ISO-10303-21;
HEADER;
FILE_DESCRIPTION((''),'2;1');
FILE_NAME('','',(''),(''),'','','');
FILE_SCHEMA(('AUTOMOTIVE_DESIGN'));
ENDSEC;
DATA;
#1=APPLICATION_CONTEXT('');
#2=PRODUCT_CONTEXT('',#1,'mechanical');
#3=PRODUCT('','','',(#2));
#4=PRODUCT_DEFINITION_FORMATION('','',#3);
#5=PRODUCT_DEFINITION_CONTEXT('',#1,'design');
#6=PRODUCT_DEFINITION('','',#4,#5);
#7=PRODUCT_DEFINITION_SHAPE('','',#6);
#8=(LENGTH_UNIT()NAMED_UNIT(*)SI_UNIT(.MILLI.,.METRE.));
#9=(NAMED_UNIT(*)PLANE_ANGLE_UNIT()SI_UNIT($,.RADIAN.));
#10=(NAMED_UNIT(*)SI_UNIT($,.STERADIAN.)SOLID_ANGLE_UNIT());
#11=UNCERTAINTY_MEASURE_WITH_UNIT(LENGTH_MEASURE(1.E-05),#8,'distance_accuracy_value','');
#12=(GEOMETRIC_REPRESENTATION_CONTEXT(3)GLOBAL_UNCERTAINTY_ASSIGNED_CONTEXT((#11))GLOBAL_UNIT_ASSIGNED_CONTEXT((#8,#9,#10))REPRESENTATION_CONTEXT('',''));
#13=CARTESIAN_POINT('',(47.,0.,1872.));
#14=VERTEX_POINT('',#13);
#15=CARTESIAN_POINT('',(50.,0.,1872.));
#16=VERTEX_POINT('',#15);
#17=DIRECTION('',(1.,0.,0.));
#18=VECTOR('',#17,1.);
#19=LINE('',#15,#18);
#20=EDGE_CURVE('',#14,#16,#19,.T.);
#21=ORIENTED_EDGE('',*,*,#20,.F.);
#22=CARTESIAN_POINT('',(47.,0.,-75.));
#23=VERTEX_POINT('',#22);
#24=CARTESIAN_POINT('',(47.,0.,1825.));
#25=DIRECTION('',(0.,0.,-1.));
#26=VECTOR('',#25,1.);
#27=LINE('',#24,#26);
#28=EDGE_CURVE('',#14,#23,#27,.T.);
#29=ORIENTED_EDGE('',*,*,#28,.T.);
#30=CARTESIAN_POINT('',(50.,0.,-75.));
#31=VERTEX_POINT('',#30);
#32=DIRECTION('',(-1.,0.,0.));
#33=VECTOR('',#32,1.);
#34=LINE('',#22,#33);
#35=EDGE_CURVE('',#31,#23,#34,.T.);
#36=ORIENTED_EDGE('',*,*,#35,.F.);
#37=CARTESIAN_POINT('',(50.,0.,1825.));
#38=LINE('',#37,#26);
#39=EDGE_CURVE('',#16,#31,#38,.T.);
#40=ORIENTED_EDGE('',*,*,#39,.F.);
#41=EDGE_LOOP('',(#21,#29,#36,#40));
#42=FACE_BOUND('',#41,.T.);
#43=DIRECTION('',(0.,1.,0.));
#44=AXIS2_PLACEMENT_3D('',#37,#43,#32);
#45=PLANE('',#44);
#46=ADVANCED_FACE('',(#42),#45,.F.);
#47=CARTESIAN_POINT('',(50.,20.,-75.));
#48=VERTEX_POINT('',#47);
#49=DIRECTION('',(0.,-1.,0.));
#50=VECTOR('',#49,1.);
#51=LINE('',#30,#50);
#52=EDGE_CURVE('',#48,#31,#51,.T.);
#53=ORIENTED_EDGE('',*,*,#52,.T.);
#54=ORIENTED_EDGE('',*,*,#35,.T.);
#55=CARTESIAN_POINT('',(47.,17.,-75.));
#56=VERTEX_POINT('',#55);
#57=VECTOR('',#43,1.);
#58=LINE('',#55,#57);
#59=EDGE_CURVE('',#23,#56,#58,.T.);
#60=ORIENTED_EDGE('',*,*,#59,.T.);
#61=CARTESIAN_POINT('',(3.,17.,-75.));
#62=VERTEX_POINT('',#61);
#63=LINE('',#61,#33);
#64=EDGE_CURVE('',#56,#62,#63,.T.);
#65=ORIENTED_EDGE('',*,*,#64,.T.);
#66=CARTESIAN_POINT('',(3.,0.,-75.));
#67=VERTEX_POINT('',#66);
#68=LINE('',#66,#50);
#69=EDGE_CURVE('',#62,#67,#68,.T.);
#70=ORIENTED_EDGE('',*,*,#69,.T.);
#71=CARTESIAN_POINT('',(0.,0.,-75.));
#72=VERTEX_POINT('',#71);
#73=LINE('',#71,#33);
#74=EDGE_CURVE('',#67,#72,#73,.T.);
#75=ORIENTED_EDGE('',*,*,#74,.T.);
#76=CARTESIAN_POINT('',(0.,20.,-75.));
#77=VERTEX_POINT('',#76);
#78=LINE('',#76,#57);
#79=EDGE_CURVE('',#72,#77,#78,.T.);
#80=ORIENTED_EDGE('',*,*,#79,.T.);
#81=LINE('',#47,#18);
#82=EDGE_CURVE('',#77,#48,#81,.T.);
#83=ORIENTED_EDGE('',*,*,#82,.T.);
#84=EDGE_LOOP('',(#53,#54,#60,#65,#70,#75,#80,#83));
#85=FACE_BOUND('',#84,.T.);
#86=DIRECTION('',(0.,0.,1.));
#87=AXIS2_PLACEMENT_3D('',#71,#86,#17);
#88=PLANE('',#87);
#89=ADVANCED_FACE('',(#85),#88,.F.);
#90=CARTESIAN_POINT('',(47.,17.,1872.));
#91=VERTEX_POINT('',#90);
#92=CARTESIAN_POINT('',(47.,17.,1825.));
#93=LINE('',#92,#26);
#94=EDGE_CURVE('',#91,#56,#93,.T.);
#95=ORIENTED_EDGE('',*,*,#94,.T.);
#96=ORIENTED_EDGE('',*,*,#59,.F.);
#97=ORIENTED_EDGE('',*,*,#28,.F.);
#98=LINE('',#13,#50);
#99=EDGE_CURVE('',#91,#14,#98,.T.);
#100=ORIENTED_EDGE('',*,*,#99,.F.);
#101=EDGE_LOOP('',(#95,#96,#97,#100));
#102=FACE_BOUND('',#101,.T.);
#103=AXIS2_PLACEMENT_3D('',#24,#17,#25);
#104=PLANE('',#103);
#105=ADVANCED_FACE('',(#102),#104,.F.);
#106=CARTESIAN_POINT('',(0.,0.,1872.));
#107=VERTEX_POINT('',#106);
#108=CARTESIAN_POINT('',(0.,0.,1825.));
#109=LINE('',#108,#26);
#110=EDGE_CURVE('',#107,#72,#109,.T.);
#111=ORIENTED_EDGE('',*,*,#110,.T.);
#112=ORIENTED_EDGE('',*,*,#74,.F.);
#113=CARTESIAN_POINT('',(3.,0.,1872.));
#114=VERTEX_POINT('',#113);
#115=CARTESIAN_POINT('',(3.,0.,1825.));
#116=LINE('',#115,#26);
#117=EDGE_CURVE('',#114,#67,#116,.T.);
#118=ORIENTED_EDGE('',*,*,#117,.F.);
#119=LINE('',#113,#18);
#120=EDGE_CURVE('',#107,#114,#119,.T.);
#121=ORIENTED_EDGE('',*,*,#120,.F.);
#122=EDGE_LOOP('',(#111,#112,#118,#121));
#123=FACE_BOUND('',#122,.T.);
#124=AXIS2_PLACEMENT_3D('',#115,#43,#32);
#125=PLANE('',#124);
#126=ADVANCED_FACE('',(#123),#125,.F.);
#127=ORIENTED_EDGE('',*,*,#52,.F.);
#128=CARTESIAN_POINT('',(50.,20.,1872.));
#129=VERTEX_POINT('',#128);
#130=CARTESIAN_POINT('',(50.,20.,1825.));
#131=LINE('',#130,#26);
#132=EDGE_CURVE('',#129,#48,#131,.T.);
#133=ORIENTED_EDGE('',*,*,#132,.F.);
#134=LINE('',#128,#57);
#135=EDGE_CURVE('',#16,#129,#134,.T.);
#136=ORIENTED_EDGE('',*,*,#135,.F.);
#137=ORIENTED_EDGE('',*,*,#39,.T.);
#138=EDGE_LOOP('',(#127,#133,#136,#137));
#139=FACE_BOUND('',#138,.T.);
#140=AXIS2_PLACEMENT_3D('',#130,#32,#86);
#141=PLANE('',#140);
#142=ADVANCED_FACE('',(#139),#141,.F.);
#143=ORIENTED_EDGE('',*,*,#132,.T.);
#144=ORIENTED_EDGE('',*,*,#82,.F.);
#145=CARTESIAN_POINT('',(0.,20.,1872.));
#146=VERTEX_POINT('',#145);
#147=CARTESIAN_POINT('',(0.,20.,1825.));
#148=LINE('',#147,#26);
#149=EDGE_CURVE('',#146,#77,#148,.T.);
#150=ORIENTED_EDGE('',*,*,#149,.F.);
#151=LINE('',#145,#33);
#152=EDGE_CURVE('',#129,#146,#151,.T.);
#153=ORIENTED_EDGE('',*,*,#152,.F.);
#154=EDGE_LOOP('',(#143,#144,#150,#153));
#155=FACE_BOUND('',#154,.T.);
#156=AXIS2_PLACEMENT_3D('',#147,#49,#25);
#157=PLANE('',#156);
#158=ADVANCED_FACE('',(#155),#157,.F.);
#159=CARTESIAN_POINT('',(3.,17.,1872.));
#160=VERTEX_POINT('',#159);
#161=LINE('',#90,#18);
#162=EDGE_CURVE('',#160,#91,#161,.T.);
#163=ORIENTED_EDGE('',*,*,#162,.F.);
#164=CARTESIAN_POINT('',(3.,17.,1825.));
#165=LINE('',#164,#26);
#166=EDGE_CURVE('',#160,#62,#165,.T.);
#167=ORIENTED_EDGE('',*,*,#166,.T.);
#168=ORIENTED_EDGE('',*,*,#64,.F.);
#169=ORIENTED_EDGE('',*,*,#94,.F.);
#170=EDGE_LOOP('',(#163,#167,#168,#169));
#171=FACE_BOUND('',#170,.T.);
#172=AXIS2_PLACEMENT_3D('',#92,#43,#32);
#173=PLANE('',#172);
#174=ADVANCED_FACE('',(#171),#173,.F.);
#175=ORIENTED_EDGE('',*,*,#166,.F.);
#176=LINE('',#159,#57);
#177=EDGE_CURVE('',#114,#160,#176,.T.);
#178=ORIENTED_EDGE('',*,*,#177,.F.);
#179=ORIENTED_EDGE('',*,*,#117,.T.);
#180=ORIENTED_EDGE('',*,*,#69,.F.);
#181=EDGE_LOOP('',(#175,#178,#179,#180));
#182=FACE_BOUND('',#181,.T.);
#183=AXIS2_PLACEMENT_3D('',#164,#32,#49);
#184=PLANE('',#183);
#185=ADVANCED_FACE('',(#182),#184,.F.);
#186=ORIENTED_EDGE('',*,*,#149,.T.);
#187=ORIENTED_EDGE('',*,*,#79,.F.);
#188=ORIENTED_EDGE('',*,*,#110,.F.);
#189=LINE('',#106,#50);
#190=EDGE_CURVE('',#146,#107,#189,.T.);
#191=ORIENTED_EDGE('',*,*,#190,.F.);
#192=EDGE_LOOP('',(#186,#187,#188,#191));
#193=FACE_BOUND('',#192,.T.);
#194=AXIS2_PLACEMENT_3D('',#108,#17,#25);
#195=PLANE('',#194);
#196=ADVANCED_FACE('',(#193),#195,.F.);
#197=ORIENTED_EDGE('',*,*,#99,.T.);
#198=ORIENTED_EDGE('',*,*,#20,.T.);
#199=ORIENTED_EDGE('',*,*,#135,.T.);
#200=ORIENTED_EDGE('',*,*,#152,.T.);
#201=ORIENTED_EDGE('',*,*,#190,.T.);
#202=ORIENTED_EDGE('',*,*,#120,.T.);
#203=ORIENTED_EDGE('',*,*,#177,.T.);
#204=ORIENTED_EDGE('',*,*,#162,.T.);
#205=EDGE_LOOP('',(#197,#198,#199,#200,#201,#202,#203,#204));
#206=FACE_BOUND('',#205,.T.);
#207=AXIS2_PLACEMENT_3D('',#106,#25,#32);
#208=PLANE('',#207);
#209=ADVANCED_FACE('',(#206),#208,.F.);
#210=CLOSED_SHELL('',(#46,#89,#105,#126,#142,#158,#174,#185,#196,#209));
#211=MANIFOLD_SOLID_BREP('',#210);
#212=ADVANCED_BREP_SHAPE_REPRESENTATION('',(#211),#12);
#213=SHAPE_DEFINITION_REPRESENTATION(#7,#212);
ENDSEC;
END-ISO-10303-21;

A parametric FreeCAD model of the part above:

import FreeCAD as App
import Part
import Sketcher

V = App.Vector


def add_polygon(sketch, points):
    """Adds a closed chain of lines whose ends are joined by coincident constraints."""
    first, n = sketch.GeometryCount, len(points)
    for a, b in zip(points, points[1:] + points[:1]):
        sketch.addGeometry(Part.LineSegment(App.Vector(*a, 0), App.Vector(*b, 0)), False)
    for i in range(n):
        sketch.addConstraint(Sketcher.Constraint("Coincident", first + i, 2, first + (i + 1) % n, 1))

doc = App.newDocument("Part")
body = doc.addObject("PartDesign::Body", "Body")

sketch1 = doc.addObject("Sketcher::SketchObject", "Sketch")
body.addObject(sketch1)
sketch1.AttachmentSupport = (doc.XY_Plane, [""])
sketch1.MapMode = "FlatFace"
add_polygon(sketch1, [(0, 20), (0, 0), (3, 0), (3, 17), (47, 17), (47, 0), (50, 0), (50, 20)])
sketch1.addConstraint(Sketcher.Constraint("Vertical", 0))
sketch1.addConstraint(Sketcher.Constraint("Horizontal", 1))
sketch1.addConstraint(Sketcher.Constraint("Vertical", 2))
sketch1.addConstraint(Sketcher.Constraint("Horizontal", 3))
sketch1.addConstraint(Sketcher.Constraint("Vertical", 4))
sketch1.addConstraint(Sketcher.Constraint("Horizontal", 5))
sketch1.addConstraint(Sketcher.Constraint("Vertical", 6))
sketch1.addConstraint(Sketcher.Constraint("Horizontal", 7))
sketch1.addConstraint(Sketcher.Constraint("Coincident", 0, 2, -1, 1))
sketch1.addConstraint(Sketcher.Constraint("PointOnObject", 4, 2, -1))
sketch1.addConstraint(Sketcher.Constraint("Equal", 1, 5))
sketch1.addConstraint(Sketcher.Constraint("DistanceX", 1, 1, 1, 2, 3.0))
sketch1.addConstraint(Sketcher.Constraint("DistanceX", 3, 1, 3, 2, 44.0))
sketch1.addConstraint(Sketcher.Constraint("DistanceY", 0, 2, 0, 1, 20.0))
sketch1.addConstraint(Sketcher.Constraint("DistanceY", 2, 1, 2, 2, 17.0))
pad1 = doc.addObject("PartDesign::Pad", "Pad")
body.addObject(pad1)
pad1.Profile = sketch1
pad1.Length = 1825

sketch2 = doc.addObject("Sketcher::SketchObject", "Sketch001")
body.addObject(sketch2)
sketch2.AttachmentSupport = (doc.XY_Plane, [""])
sketch2.MapMode = "FlatFace"
sketch2.AttachmentOffset = App.Placement(V(0, 0, 1825), App.Rotation())
add_polygon(sketch2, [(0, 20), (0, 0), (3, 0), (3, 17), (47, 17), (47, 0), (50, 0), (50, 20)])
sketch2.addConstraint(Sketcher.Constraint("Vertical", 0))
sketch2.addConstraint(Sketcher.Constraint("Horizontal", 1))
sketch2.addConstraint(Sketcher.Constraint("Vertical", 2))
sketch2.addConstraint(Sketcher.Constraint("Horizontal", 3))
sketch2.addConstraint(Sketcher.Constraint("Vertical", 4))
sketch2.addConstraint(Sketcher.Constraint("Horizontal", 5))
sketch2.addConstraint(Sketcher.Constraint("Vertical", 6))
sketch2.addConstraint(Sketcher.Constraint("Horizontal", 7))
sketch2.addConstraint(Sketcher.Constraint("Coincident", 0, 2, -1, 1))
sketch2.addConstraint(Sketcher.Constraint("PointOnObject", 4, 2, -1))
sketch2.addConstraint(Sketcher.Constraint("Equal", 1, 5))
sketch2.addConstraint(Sketcher.Constraint("DistanceX", 1, 1, 1, 2, 3.0))
sketch2.addConstraint(Sketcher.Constraint("DistanceX", 3, 1, 3, 2, 44.0))
sketch2.addConstraint(Sketcher.Constraint("DistanceY", 0, 2, 0, 1, 20.0))
sketch2.addConstraint(Sketcher.Constraint("DistanceY", 2, 1, 2, 2, 17.0))
pad2 = doc.addObject("PartDesign::Pad", "Pad001")
body.addObject(pad2)
pad2.Profile = sketch2
pad2.Length = 47

sketch3 = doc.addObject("Sketcher::SketchObject", "Sketch002")
body.addObject(sketch3)
sketch3.AttachmentSupport = (doc.XY_Plane, [""])
sketch3.MapMode = "FlatFace"
add_polygon(sketch3, [(50, 20), (50, 0), (47, 0), (47, 17), (3, 17), (3, 0), (0, 0), (0, 20)])
sketch3.addConstraint(Sketcher.Constraint("Vertical", 0))
sketch3.addConstraint(Sketcher.Constraint("Horizontal", 1))
sketch3.addConstraint(Sketcher.Constraint("Vertical", 2))
sketch3.addConstraint(Sketcher.Constraint("Horizontal", 3))
sketch3.addConstraint(Sketcher.Constraint("Vertical", 4))
sketch3.addConstraint(Sketcher.Constraint("Horizontal", 5))
sketch3.addConstraint(Sketcher.Constraint("Vertical", 6))
sketch3.addConstraint(Sketcher.Constraint("Horizontal", 7))
sketch3.addConstraint(Sketcher.Constraint("Coincident", 5, 2, -1, 1))
sketch3.addConstraint(Sketcher.Constraint("PointOnObject", 0, 2, -1))
sketch3.addConstraint(Sketcher.Constraint("Equal", 1, 5))
sketch3.addConstraint(Sketcher.Constraint("DistanceX", 1, 2, 1, 1, 3.0))
sketch3.addConstraint(Sketcher.Constraint("DistanceX", 3, 2, 3, 1, 44.0))
sketch3.addConstraint(Sketcher.Constraint("DistanceY", 0, 2, 0, 1, 20.0))
sketch3.addConstraint(Sketcher.Constraint("DistanceY", 2, 1, 2, 2, 17.0))
pad3 = doc.addObject("PartDesign::Pad", "Pad002")
body.addObject(pad3)
pad3.Profile = sketch3
pad3.Length = 75
pad3.Reversed = True

doc.recompute()
